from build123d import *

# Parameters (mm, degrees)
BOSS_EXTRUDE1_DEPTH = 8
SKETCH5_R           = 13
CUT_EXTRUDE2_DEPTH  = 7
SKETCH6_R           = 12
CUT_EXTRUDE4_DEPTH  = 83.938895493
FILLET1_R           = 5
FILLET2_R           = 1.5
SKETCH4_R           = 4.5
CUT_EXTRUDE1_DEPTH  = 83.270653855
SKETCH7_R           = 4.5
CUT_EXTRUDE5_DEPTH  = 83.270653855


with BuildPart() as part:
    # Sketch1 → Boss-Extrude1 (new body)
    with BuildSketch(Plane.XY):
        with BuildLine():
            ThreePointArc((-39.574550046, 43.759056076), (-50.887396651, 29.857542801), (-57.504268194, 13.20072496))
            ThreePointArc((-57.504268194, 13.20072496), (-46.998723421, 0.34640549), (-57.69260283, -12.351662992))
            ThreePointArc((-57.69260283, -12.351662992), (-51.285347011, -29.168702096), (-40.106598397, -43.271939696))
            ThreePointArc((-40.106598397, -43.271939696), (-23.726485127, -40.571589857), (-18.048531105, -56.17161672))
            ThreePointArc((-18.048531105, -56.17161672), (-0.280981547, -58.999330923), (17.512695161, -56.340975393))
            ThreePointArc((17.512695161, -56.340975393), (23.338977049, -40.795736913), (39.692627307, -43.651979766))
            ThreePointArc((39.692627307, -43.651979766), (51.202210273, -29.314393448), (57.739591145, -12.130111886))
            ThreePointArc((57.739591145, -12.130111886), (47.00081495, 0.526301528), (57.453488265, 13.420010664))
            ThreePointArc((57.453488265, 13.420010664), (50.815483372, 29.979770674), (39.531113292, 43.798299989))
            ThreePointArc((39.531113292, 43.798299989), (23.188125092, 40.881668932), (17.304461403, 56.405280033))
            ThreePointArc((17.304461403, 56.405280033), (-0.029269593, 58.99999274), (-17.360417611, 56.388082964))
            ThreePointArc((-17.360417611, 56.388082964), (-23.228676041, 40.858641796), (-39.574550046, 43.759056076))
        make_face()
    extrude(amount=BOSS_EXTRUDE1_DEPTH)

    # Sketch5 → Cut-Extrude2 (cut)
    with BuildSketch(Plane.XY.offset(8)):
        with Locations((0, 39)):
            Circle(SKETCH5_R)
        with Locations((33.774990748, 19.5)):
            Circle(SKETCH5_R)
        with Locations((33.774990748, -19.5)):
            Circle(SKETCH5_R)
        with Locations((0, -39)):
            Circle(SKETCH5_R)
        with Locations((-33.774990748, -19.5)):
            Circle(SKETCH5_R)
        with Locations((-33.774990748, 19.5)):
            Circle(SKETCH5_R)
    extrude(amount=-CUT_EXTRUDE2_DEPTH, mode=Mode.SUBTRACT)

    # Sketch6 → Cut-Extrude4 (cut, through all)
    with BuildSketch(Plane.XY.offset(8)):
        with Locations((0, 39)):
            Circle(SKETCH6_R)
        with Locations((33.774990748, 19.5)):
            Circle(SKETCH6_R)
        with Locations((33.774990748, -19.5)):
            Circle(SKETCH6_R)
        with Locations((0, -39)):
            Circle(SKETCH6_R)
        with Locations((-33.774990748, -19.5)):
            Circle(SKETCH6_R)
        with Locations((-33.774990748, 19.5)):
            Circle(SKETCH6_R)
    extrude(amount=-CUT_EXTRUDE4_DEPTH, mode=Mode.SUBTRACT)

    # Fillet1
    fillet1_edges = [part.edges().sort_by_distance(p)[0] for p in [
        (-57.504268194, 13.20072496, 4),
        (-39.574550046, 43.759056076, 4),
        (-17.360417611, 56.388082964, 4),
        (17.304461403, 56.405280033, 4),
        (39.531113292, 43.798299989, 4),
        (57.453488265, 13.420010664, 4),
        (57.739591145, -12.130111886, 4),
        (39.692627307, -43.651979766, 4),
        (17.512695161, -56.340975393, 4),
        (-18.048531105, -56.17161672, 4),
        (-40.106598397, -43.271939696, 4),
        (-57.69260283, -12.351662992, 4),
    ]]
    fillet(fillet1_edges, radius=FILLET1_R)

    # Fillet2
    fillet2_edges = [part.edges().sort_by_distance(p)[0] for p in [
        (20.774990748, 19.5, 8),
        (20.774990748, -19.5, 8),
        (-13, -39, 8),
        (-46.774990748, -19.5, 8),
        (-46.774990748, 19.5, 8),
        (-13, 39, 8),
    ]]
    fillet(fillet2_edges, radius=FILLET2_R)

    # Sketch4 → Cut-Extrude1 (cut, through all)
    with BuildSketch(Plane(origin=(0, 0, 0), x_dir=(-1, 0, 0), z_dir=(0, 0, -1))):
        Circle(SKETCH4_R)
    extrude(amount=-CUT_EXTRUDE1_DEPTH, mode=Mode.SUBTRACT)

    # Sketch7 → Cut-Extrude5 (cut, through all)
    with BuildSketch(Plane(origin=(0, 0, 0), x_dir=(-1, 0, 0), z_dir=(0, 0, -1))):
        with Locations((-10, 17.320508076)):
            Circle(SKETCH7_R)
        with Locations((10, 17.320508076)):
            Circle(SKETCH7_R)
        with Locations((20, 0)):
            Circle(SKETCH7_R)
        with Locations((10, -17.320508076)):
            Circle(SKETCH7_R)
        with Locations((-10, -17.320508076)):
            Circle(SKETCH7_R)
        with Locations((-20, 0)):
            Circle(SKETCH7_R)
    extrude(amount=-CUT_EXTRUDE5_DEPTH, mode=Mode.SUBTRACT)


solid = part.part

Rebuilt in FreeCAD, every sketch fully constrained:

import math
import FreeCAD as App
import Part
import Sketcher


def edges_at(feature, points):
    """Names of the edges that pass closest to the given points."""
    edges = feature.Shape.Edges
    near = lambda p: min(range(len(edges)), key=lambda i: edges[i].distToShape(Part.Vertex(*p))[0])
    return sorted({f"Edge{near(p) + 1}" for p in points})

doc = App.newDocument("Part")
params = doc.addObject("Spreadsheet::Sheet", "Params")
for row, (alias, value) in enumerate([
    ("sketch1_radius", "59 mm"),
    ("sketch1_radius2", "13 mm"),
    ("pad1_length", "8 mm"),
    ("sketch2_diameter", "26 mm"),
    ("pocket1_length", "7 mm"),
    ("sketch3_diameter", "24 mm"),
    ("fillet_radius", "5 mm"),
    ("fillet2_radius", "1.5 mm"),
    ("sketch4_diameter", "9 mm"),
    ("sketch5_diameter", "9 mm"),
], start=1):
    params.set(f"A{row}", alias)
    params.set(f"B{row}", "=" + value)
    params.setAlias(f"B{row}", alias)

body = doc.addObject("PartDesign::Body", "Body")

sketch1 = doc.addObject("Sketcher::SketchObject", "Sketch")
body.addObject(sketch1)
sketch1.AttachmentSupport = (doc.XY_Plane, [""])
sketch1.MapMode = "FlatFace"
sketch1.addGeometry([
    Part.ArcOfCircle(Part.Circle(App.Vector(0, 0, 0), App.Vector(0, 0, 1), 59), math.radians(132), math.radians(167)),
    Part.ArcOfCircle(Part.Circle(App.Vector(-60, 0, 0), App.Vector(0, 0, 1), 13), math.radians(-80), math.radians(79)),
    Part.ArcOfCircle(Part.Circle(App.Vector(0, 0, 0), App.Vector(0, 0, 1), 59), math.radians(-168), math.radians(-133)),
    Part.ArcOfCircle(Part.Circle(App.Vector(-30, -52, 0), App.Vector(0, 0, 1), 13), math.radians(-20), math.radians(139)),
    Part.ArcOfCircle(Part.Circle(App.Vector(0, 0, 0), App.Vector(0, 0, 1), 59), math.radians(-108), math.radians(-73)),
    Part.ArcOfCircle(Part.Circle(App.Vector(30, -52, 0), App.Vector(0, 0, 1), 13), math.radians(40), math.radians(199)),
    Part.ArcOfCircle(Part.Circle(App.Vector(0, 0, 0), App.Vector(0, 0, 1), 59), math.radians(-48), math.radians(-12)),
    Part.ArcOfCircle(Part.Circle(App.Vector(60, 1, 0), App.Vector(0, 0, 1), 13), math.radians(101), math.radians(260)),
    Part.ArcOfCircle(Part.Circle(App.Vector(0, 0, 0), App.Vector(0, 0, 1), 59), math.radians(13), math.radians(48)),
    Part.ArcOfCircle(Part.Circle(App.Vector(30, 52, 0), App.Vector(0, 0, 1), 13), math.radians(161), math.radians(320)),
    Part.ArcOfCircle(Part.Circle(App.Vector(0, 0, 0), App.Vector(0, 0, 1), 59), math.radians(73), math.radians(107)),
    Part.ArcOfCircle(Part.Circle(App.Vector(-30, 52, 0), App.Vector(0, 0, 1), 13), math.radians(-140), math.radians(19)),
], False)
sketch1.addConstraint([
    Sketcher.Constraint("Coincident", 0, 2, 1, 2),
    Sketcher.Constraint("Coincident", 1, 1, 2, 1),
    Sketcher.Constraint("Coincident", 2, 2, 3, 2),
    Sketcher.Constraint("Coincident", 3, 1, 4, 1),
    Sketcher.Constraint("Coincident", 4, 2, 5, 2),
    Sketcher.Constraint("Coincident", 5, 1, 6, 1),
    Sketcher.Constraint("Coincident", 6, 2, 7, 2),
    Sketcher.Constraint("Coincident", 7, 1, 8, 1),
    Sketcher.Constraint("Coincident", 8, 2, 9, 2),
    Sketcher.Constraint("Coincident", 9, 1, 10, 1),
    Sketcher.Constraint("Coincident", 10, 2, 11, 2),
    Sketcher.Constraint("Coincident", 11, 1, 0, 1),
    Sketcher.Constraint("Coincident", 0, 3, -1, 1),
    Sketcher.Constraint("Coincident", 2, 3, -1, 1),
    Sketcher.Constraint("Coincident", 4, 3, -1, 1),
    Sketcher.Constraint("Coincident", 6, 3, -1, 1),
    Sketcher.Constraint("Coincident", 8, 3, -1, 1),
    Sketcher.Constraint("Coincident", 10, 3, -1, 1),
    Sketcher.Constraint("Equal", 0, 2),
    Sketcher.Constraint("Equal", 1, 3),
    Sketcher.Constraint("Equal", 2, 4),
    Sketcher.Constraint("Equal", 3, 5),
    Sketcher.Constraint("Equal", 4, 6),
    Sketcher.Constraint("Equal", 5, 7),
    Sketcher.Constraint("Equal", 6, 8),
    Sketcher.Constraint("Equal", 7, 9),
    Sketcher.Constraint("Equal", 8, 10),
    Sketcher.Constraint("Equal", 9, 11),
    Sketcher.Constraint("Radius", 0, 59.0),
    Sketcher.Constraint("Radius", 1, 13.0),
    Sketcher.Constraint("DistanceX", -1, 1, 7, 3, 60.0),
    Sketcher.Constraint("DistanceX", 2, 2, -1, 1, 40.106598),
    Sketcher.Constraint("DistanceY", -1, 1, 8, 2, 43.7983),
    Sketcher.Constraint("DistanceY", 7, 3, 9, 3, 51.517502),
    Sketcher.Constraint("DistanceX", 3, 3, 3, 1, 12.240599),
    Sketcher.Constraint("DistanceX", 9, 1, 9, 3, 12.2974),
    Sketcher.Constraint("DistanceX", 1, 3, -1, 1, 59.99837),
    Sketcher.Constraint("DistanceY", -1, 1, 1, 3, 0.44222),
    Sketcher.Constraint("DistanceX", -1, 1, 5, 3, 29.794439),
    Sketcher.Constraint("DistanceX", 11, 3, -1, 1, 29.653629),
    Sketcher.Constraint("DistanceY", -1, 1, 11, 3, 52.159968),
    Sketcher.Constraint("DistanceY", 5, 1, -1, 1, 43.65198),
])
sketch1.setExpression("Constraints[28]", "Params.sketch1_radius")
sketch1.setExpression("Constraints[29]", "Params.sketch1_radius2")
pad1 = doc.addObject("PartDesign::Pad", "Pad")
body.addObject(pad1)
pad1.Profile = sketch1
pad1.setExpression("Length", "Params.pad1_length")

sketch2 = doc.addObject("Sketcher::SketchObject", "Sketch001")
body.addObject(sketch2)
sketch2.AttachmentSupport = (doc.XY_Plane, [""])
sketch2.MapMode = "FlatFace"
sketch2.AttachmentOffset = App.Placement(App.Vector(0, 0, 8), App.Rotation())
sketch2.addGeometry([
    Part.Circle(App.Vector(0, 39, 0), App.Vector(0, 0, 1), 13),
    Part.Circle(App.Vector(34, 20, 0), App.Vector(0, 0, 1), 13),
    Part.Circle(App.Vector(34, -20, 0), App.Vector(0, 0, 1), 13),
    Part.Circle(App.Vector(0, -39, 0), App.Vector(0, 0, 1), 13),
    Part.Circle(App.Vector(-34, -20, 0), App.Vector(0, 0, 1), 13),
    Part.Circle(App.Vector(-34, 20, 0), App.Vector(0, 0, 1), 13),
], False)
sketch2.addConstraint([
    Sketcher.Constraint("Equal", 0, 1),
    Sketcher.Constraint("Equal", 1, 2),
    Sketcher.Constraint("Equal", 2, 3),
    Sketcher.Constraint("Equal", 3, 4),
    Sketcher.Constraint("Equal", 4, 5),
    Sketcher.Constraint("Symmetric", 0, 3, 3, 3, -1, 1),
    Sketcher.Constraint("Symmetric", 1, 3, 4, 3, -1, 1),
    Sketcher.Constraint("Symmetric", 2, 3, 5, 3, -1, 1),
    Sketcher.Constraint("Symmetric", 2, 3, 4, 3, -2),
    Sketcher.Constraint("PointOnObject", 0, 3, -2),
    Sketcher.Constraint("Diameter", 0, 26.0),
    Sketcher.Constraint("DistanceY", -1, 1, 0, 3, 39.0),
    Sketcher.Constraint("DistanceY", 2, 3, 1, 3, 39.0),
    Sketcher.Constraint("DistanceX", -1, 1, 1, 3, 33.774991),
])
sketch2.setExpression("Constraints[10]", "Params.sketch2_diameter")
pocket1 = doc.addObject("PartDesign::Pocket", "Pocket")
body.addObject(pocket1)
pocket1.Profile = sketch2
pocket1.setExpression("Length", "Params.pocket1_length")

sketch3 = doc.addObject("Sketcher::SketchObject", "Sketch002")
body.addObject(sketch3)
sketch3.AttachmentSupport = (doc.XY_Plane, [""])
sketch3.MapMode = "FlatFace"
sketch3.AttachmentOffset = App.Placement(App.Vector(0, 0, 8), App.Rotation())
sketch3.addGeometry([
    Part.Circle(App.Vector(0, 39, 0), App.Vector(0, 0, 1), 12),
    Part.Circle(App.Vector(34, 20, 0), App.Vector(0, 0, 1), 12),
    Part.Circle(App.Vector(34, -20, 0), App.Vector(0, 0, 1), 12),
    Part.Circle(App.Vector(0, -39, 0), App.Vector(0, 0, 1), 12),
    Part.Circle(App.Vector(-34, -20, 0), App.Vector(0, 0, 1), 12),
    Part.Circle(App.Vector(-34, 20, 0), App.Vector(0, 0, 1), 12),
], False)
sketch3.addConstraint([
    Sketcher.Constraint("Equal", 0, 1),
    Sketcher.Constraint("Equal", 1, 2),
    Sketcher.Constraint("Equal", 2, 3),
    Sketcher.Constraint("Equal", 3, 4),
    Sketcher.Constraint("Equal", 4, 5),
    Sketcher.Constraint("Symmetric", 0, 3, 3, 3, -1, 1),
    Sketcher.Constraint("Symmetric", 1, 3, 4, 3, -1, 1),
    Sketcher.Constraint("Symmetric", 2, 3, 5, 3, -1, 1),
    Sketcher.Constraint("Symmetric", 2, 3, 4, 3, -2),
    Sketcher.Constraint("PointOnObject", 0, 3, -2),
    Sketcher.Constraint("Diameter", 0, 24.0),
    Sketcher.Constraint("DistanceY", -1, 1, 0, 3, 39.0),
    Sketcher.Constraint("DistanceY", 2, 3, 1, 3, 39.0),
    Sketcher.Constraint("DistanceX", -1, 1, 1, 3, 33.774991),
])
sketch3.setExpression("Constraints[10]", "Params.sketch3_diameter")
pocket2 = doc.addObject("PartDesign::Pocket", "Pocket001")
body.addObject(pocket2)
pocket2.Profile = sketch3
pocket2.Type = "ThroughAll"
doc.recompute()

fillet = doc.addObject("PartDesign::Fillet", "Fillet")
body.addObject(fillet)
fillet.Base = (pocket2, edges_at(pocket2, [
    (-57.504, 13.201, 4),
    (-39.575, 43.759, 4),
    (-17.36, 56.388, 4),
    (17.304, 56.405, 4),
    (39.531, 43.798, 4),
    (57.453, 13.42, 4),
    (57.74, -12.13, 4),
    (39.693, -43.652, 4),
    (17.513, -56.341, 4),
    (-18.049, -56.172, 4),
    (-40.107, -43.272, 4),
    (-57.693, -12.352, 4),
]))
fillet.setExpression("Radius", "Params.fillet_radius")
doc.recompute()

fillet2 = doc.addObject("PartDesign::Fillet", "Fillet001")
body.addObject(fillet2)
fillet2.Base = (fillet, edges_at(fillet, [
    (20.775, 19.5, 8),
    (20.775, -19.5, 8),
    (-13, -39, 8),
    (-46.775, -19.5, 8),
    (-46.775, 19.5, 8),
    (-13, 39, 8),
]))
fillet2.setExpression("Radius", "Params.fillet2_radius")

sketch4 = doc.addObject("Sketcher::SketchObject", "Sketch003")
body.addObject(sketch4)
sketch4.AttachmentSupport = (doc.XY_Plane, [""])
sketch4.MapMode = "FlatFace"
sketch4.addGeometry(Part.Circle(App.Vector(0, 0, 0), App.Vector(0, 0, 1), 4.5), False)
sketch4.addConstraint([
    Sketcher.Constraint("Coincident", 0, 3, -1, 1),
    Sketcher.Constraint("Diameter", 0, 9.0),
])
sketch4.setExpression("Constraints[1]", "Params.sketch4_diameter")
pocket3 = doc.addObject("PartDesign::Pocket", "Pocket002")
body.addObject(pocket3)
pocket3.Profile = sketch4
pocket3.Type = "ThroughAll"
pocket3.Reversed = True

sketch5 = doc.addObject("Sketcher::SketchObject", "Sketch004")
body.addObject(sketch5)
sketch5.AttachmentSupport = (doc.XY_Plane, [""])
sketch5.MapMode = "FlatFace"
sketch5.addGeometry([
    Part.Circle(App.Vector(10, 17.3, 0), App.Vector(0, 0, 1), 4.5),
    Part.Circle(App.Vector(-10, 17.3, 0), App.Vector(0, 0, 1), 4.5),
    Part.Circle(App.Vector(-20, 0, 0), App.Vector(0, 0, 1), 4.5),
    Part.Circle(App.Vector(-10, -17.3, 0), App.Vector(0, 0, 1), 4.5),
    Part.Circle(App.Vector(10, -17.3, 0), App.Vector(0, 0, 1), 4.5),
    Part.Circle(App.Vector(20, 0, 0), App.Vector(0, 0, 1), 4.5),
], False)
sketch5.addConstraint([
    Sketcher.Constraint("Equal", 0, 1),
    Sketcher.Constraint("Equal", 1, 2),
    Sketcher.Constraint("Equal", 2, 3),
    Sketcher.Constraint("Equal", 3, 4),
    Sketcher.Constraint("Equal", 4, 5),
    Sketcher.Constraint("Symmetric", 0, 3, 3, 3, -1, 1),
    Sketcher.Constraint("Symmetric", 1, 3, 4, 3, -1, 1),
    Sketcher.Constraint("Symmetric", 2, 3, 5, 3, -1, 1),
    Sketcher.Constraint("Symmetric", 0, 3, 1, 3, -2),
    Sketcher.Constraint("PointOnObject", 2, 3, -1),
    Sketcher.Constraint("Diameter", 0, 9.0),
    Sketcher.Constraint("DistanceX", -1, 1, 0, 3, 10.0),
    Sketcher.Constraint("DistanceX", 2, 3, -1, 1, 20.0),
    Sketcher.Constraint("DistanceY", -1, 1, 0, 3, 17.320508),
])
sketch5.setExpression("Constraints[10]", "Params.sketch5_diameter")
pocket4 = doc.addObject("PartDesign::Pocket", "Pocket003")
body.addObject(pocket4)
pocket4.Profile = sketch5
pocket4.Type = "ThroughAll"
pocket4.Reversed = True

doc.recompute()
